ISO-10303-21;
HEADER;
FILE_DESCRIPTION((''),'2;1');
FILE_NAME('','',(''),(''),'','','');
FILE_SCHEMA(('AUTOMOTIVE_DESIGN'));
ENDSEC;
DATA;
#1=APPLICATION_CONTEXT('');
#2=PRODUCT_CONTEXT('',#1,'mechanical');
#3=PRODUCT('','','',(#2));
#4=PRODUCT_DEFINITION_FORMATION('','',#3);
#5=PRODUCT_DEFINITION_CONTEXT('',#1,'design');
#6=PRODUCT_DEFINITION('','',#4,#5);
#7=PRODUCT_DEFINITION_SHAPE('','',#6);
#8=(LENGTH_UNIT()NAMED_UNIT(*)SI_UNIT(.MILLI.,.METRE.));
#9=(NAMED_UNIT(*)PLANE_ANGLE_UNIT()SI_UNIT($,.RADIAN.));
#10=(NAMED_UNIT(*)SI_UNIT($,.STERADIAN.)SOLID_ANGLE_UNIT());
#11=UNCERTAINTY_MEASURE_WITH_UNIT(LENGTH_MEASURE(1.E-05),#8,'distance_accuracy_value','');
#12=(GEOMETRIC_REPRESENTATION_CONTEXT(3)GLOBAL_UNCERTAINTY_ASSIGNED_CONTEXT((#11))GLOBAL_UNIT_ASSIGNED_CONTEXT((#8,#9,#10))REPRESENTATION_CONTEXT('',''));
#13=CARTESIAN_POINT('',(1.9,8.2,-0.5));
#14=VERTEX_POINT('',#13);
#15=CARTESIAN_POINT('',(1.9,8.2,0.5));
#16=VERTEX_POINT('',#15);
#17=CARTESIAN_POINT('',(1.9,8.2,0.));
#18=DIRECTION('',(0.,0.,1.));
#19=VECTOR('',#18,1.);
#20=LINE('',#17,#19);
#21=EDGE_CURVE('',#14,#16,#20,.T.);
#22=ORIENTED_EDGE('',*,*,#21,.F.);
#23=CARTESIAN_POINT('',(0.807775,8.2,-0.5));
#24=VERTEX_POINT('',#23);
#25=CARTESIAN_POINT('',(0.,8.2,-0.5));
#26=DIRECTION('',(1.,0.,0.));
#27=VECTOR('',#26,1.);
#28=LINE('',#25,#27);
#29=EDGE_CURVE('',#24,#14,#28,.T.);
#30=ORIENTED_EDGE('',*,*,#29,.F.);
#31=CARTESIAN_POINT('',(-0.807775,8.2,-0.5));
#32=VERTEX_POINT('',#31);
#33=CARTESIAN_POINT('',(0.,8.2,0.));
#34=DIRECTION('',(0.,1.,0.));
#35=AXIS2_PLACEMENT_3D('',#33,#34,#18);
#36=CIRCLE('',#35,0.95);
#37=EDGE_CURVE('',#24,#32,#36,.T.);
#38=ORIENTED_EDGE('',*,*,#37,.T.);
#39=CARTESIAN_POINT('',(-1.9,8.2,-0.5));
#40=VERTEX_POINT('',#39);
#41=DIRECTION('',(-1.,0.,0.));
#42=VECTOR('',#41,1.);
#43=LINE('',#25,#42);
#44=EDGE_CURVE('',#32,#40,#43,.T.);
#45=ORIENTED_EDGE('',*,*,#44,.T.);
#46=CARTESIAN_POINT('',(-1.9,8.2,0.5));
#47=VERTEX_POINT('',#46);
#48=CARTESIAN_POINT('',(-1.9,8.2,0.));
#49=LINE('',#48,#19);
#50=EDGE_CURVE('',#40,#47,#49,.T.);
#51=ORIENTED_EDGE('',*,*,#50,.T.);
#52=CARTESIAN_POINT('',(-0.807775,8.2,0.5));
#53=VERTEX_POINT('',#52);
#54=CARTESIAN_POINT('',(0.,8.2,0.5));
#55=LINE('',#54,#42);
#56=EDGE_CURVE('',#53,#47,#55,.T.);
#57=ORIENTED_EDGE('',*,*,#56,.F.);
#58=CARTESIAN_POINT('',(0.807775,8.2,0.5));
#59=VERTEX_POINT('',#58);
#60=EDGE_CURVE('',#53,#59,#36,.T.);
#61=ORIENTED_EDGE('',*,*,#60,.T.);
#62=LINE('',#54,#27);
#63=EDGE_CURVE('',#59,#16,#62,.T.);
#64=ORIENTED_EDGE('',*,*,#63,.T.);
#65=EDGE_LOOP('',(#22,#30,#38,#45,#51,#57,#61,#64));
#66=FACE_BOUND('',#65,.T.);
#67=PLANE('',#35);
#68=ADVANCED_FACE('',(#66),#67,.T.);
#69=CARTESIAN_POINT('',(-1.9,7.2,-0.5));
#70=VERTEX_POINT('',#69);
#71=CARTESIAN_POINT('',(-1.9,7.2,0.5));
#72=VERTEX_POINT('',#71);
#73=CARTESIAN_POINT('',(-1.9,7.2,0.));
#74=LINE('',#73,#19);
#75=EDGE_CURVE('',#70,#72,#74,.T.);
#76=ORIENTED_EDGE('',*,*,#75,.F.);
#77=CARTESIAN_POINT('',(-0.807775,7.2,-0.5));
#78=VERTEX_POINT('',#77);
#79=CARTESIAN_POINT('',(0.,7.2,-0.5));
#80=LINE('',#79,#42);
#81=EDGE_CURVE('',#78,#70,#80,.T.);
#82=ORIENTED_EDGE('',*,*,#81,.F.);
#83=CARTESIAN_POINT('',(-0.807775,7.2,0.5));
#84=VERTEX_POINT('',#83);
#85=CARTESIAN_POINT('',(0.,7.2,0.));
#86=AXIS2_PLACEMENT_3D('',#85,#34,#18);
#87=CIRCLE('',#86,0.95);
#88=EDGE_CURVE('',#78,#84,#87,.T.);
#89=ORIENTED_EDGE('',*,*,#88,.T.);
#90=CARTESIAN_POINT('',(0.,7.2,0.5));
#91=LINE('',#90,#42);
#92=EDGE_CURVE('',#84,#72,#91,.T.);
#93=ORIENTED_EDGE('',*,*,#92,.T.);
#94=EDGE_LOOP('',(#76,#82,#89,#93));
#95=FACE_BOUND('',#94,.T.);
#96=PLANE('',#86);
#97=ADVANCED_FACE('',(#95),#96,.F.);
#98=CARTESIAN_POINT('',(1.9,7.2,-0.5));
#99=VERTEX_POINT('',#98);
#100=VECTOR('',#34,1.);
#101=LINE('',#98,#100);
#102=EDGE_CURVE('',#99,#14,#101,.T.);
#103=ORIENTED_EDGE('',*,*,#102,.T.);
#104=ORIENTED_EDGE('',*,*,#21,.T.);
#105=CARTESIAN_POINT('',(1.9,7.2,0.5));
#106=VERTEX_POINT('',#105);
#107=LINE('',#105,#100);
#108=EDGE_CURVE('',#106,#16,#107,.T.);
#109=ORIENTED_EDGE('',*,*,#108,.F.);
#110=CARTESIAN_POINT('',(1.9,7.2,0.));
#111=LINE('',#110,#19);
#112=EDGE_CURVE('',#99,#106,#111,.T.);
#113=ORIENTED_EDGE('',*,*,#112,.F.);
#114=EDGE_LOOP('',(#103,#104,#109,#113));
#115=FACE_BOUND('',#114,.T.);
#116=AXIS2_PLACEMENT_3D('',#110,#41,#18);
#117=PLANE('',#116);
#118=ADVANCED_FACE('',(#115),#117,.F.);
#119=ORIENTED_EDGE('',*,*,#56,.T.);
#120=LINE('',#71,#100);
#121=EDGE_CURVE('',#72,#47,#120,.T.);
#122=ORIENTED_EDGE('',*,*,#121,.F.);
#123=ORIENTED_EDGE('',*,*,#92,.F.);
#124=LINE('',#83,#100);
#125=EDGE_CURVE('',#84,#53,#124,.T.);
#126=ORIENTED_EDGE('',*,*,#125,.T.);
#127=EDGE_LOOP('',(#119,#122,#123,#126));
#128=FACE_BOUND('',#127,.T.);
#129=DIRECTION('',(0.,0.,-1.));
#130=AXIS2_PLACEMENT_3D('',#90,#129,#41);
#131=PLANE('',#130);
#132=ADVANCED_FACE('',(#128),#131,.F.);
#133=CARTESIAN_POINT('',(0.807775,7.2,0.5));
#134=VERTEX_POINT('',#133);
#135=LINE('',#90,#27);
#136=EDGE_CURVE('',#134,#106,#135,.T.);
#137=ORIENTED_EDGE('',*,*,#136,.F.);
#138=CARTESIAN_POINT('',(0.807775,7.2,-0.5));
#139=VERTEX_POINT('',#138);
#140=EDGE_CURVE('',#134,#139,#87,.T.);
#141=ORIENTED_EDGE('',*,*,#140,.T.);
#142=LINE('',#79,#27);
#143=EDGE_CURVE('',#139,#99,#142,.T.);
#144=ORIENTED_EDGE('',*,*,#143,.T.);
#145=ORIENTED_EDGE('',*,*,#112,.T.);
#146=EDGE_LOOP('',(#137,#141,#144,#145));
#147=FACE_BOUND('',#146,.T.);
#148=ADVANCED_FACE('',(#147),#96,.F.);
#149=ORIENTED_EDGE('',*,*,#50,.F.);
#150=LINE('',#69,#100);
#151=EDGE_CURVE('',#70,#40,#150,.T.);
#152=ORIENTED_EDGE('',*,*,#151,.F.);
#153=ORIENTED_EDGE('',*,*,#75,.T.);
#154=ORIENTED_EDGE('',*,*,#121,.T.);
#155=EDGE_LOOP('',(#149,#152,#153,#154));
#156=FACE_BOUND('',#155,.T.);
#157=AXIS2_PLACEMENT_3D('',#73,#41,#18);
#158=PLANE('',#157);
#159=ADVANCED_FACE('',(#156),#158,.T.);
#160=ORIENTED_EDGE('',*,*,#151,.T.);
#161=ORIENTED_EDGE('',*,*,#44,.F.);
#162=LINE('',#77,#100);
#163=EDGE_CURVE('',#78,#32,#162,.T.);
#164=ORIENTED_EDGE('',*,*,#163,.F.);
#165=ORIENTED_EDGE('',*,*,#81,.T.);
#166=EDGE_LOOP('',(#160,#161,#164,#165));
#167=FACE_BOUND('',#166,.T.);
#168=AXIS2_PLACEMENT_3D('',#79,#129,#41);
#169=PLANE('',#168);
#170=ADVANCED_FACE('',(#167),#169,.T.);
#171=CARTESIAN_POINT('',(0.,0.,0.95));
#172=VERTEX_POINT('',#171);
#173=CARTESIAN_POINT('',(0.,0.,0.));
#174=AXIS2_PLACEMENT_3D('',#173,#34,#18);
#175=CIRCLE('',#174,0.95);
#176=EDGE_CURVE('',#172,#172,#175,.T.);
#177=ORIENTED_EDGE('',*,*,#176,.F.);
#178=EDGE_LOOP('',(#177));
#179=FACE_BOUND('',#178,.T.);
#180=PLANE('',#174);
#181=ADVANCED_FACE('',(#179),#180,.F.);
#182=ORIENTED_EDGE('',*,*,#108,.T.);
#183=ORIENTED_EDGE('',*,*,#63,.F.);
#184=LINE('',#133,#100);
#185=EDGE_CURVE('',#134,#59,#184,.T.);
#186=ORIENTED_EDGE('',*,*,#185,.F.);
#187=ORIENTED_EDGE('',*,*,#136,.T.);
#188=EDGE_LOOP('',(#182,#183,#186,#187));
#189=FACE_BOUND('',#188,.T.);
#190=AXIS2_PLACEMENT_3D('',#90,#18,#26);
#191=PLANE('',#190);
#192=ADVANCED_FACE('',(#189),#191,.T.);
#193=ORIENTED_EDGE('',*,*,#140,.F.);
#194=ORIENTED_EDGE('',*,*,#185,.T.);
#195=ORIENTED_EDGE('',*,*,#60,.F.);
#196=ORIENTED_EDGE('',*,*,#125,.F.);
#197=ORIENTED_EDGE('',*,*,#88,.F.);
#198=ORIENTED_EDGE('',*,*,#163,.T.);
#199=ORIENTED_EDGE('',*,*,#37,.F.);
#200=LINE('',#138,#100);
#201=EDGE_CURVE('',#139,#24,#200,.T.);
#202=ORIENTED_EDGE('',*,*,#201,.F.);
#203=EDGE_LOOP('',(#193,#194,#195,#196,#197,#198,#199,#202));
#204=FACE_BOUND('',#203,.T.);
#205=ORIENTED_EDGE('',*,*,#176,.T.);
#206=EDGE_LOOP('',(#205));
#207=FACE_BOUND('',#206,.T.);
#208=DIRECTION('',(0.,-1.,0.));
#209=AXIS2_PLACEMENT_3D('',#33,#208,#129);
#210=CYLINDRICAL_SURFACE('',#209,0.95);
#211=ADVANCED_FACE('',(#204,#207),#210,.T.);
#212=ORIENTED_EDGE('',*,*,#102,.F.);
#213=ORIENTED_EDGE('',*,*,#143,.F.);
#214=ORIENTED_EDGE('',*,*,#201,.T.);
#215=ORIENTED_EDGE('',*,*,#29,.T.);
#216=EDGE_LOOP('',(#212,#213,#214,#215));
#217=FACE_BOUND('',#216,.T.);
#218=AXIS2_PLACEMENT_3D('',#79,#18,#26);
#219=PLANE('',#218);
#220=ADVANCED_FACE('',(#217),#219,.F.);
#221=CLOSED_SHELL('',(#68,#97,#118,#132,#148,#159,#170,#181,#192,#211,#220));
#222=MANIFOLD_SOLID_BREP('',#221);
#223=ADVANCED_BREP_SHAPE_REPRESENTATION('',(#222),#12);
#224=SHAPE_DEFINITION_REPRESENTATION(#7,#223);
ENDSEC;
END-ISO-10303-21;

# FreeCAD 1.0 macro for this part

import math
import FreeCAD as App
import Part
import Sketcher

doc = App.newDocument("Part")
params = doc.addObject("Spreadsheet::Sheet", "Params")
for row, (alias, value) in enumerate([
    ("sketch1_diameter", "1.9 mm"),
    ("pad1_length", "8.2 mm"),
    ("sketch2_height", "1 mm"),
    ("sketch2_radius", "0.95 mm"),
    ("pad2_length", "1 mm"),
], start=1):
    params.set(f"A{row}", alias)
    params.set(f"B{row}", "=" + value)
    params.setAlias(f"B{row}", alias)

body = doc.addObject("PartDesign::Body", "Body")

sketch1 = body.newObject("Sketcher::SketchObject", "Sketch")
sketch1.AttachmentSupport = (doc.getObject("XZ_Plane"), [""])
sketch1.MapMode = "FlatFace"
sketch1.addGeometry(Part.Circle(App.Vector(0, 0, 0), App.Vector(0, 0, 1), 0.95), False)
sketch1.addConstraint(Sketcher.Constraint("Coincident", 0, 3, -1, 1))
sketch1.addConstraint(Sketcher.Constraint("Diameter", 0, 1.9))
sketch1.setExpression("Constraints[1]", "Params.sketch1_diameter")
pad1 = body.newObject("PartDesign::Pad", "Pad")
pad1.Profile = sketch1
pad1.setExpression("Length", "Params.pad1_length")
pad1.Reversed = True

sketch2 = body.newObject("Sketcher::SketchObject", "Sketch001")
sketch2.AttachmentSupport = (doc.getObject("XZ_Plane"), [""])
sketch2.MapMode = "FlatFace"
sketch2.AttachmentOffset = App.Placement(App.Vector(0, 0, -8.2), App.Rotation())
sketch2.addGeometry(Part.ArcOfCircle(Part.Circle(App.Vector(0, 0, 0), App.Vector(0, 0, 1), 0.95), math.radians(148.243136), math.radians(211.756864)), False)
sketch2.addGeometry(Part.LineSegment(App.Vector(-0.807775, -0.5, 0), App.Vector(-1.9, -0.5, 0)), False)
sketch2.addGeometry(Part.LineSegment(App.Vector(-1.9, -0.5, 0), App.Vector(-1.9, 0.5, 0)), False)
sketch2.addGeometry(Part.LineSegment(App.Vector(-1.9, 0.5, 0), App.Vector(-0.807775, 0.5, 0)), False)
sketch2.addGeometry(Part.LineSegment(App.Vector(1.9, -0.5, 0), App.Vector(0.807775, -0.5, 0)), False)
sketch2.addGeometry(Part.ArcOfCircle(Part.Circle(App.Vector(0, 0, 0), App.Vector(0, 0, 1), 0.95), math.radians(-31.756864), math.radians(0)), False)
sketch2.addGeometry(Part.ArcOfCircle(Part.Circle(App.Vector(0, 0, 0), App.Vector(0, 0, 1), 0.95), math.radians(0), math.radians(31.756864)), False)
sketch2.addGeometry(Part.LineSegment(App.Vector(0.807775, 0.5, 0), App.Vector(1.9, 0.5, 0)), False)
sketch2.addGeometry(Part.LineSegment(App.Vector(1.9, 0.5, 0), App.Vector(1.9, -0.5, 0)), False)
sketch2.addConstraint(Sketcher.Constraint("Coincident", 0, 2, 1, 1))
sketch2.addConstraint(Sketcher.Constraint("Coincident", 1, 2, 2, 1))
sketch2.addConstraint(Sketcher.Constraint("Coincident", 2, 2, 3, 1))
sketch2.addConstraint(Sketcher.Constraint("Coincident", 3, 2, 0, 1))
sketch2.addConstraint(Sketcher.Constraint("Coincident", 4, 2, 5, 1))
sketch2.addConstraint(Sketcher.Constraint("Tangent", 5, 2, 6, 1))
sketch2.addConstraint(Sketcher.Constraint("Coincident", 6, 2, 7, 1))
sketch2.addConstraint(Sketcher.Constraint("Coincident", 7, 2, 8, 1))
sketch2.addConstraint(Sketcher.Constraint("Coincident", 8, 2, 4, 1))
sketch2.addConstraint(Sketcher.Constraint("Horizontal", 1))
sketch2.addConstraint(Sketcher.Constraint("Vertical", 2))
sketch2.addConstraint(Sketcher.Constraint("Horizontal", 3))
sketch2.addConstraint(Sketcher.Constraint("Horizontal", 4))
sketch2.addConstraint(Sketcher.Constraint("Horizontal", 7))
sketch2.addConstraint(Sketcher.Constraint("Vertical", 8))
sketch2.addConstraint(Sketcher.Constraint("Coincident", 0, 3, -1, 1))
sketch2.addConstraint(Sketcher.Constraint("Coincident", 5, 3, -1, 1))
sketch2.addConstraint(Sketcher.Constraint("Equal", 0, 5))
sketch2.addConstraint(Sketcher.Constraint("Equal", 5, 6))
sketch2.addConstraint(Sketcher.Constraint("Symmetric", 1, 2, 7, 2, -1, 1))
sketch2.addConstraint(Sketcher.Constraint("PointOnObject", 5, 2, -1))
sketch2.addConstraint(Sketcher.Constraint("Horizontal", 1, 2, 4, 2))
sketch2.addConstraint(Sketcher.Constraint("Horizontal", 3, 2, 6, 2))
sketch2.addConstraint(Sketcher.Constraint("DistanceY", 2, 1, 2, 2, 1.0))
sketch2.addConstraint(Sketcher.Constraint("Radius", 0, 0.95))
sketch2.addConstraint(Sketcher.Constraint("DistanceX", 1, 2, -1, 1, 1.9))
sketch2.setExpression("Constraints[23]", "Params.sketch2_height")
sketch2.setExpression("Constraints[24]", "Params.sketch2_radius")
pad2 = body.newObject("PartDesign::Pad", "Pad001")
pad2.Profile = sketch2
pad2.setExpression("Length", "Params.pad2_length")

doc.recompute()
